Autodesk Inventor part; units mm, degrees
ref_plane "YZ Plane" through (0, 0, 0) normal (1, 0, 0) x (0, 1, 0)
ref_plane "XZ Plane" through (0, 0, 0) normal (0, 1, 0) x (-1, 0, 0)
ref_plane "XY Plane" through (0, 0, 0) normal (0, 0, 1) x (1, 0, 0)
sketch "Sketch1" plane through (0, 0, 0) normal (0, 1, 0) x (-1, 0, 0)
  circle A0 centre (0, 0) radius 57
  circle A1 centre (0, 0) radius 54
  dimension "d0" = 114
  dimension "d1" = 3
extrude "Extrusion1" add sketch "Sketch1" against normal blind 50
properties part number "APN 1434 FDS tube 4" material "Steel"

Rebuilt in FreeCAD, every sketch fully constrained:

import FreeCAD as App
import Part
import Sketcher

V = App.Vector

doc = App.newDocument("Part")
body = doc.addObject("PartDesign::Body", "Body")

# Sketch on XZ plane
sketch1 = body.newObject("Sketcher::SketchObject", "Sketch")
sketch1.AttachmentSupport = (doc.getObject("XZ_Plane"), [""])
sketch1.MapMode = "FlatFace"
sketch1.addGeometry([
    Part.Circle(V(0, 0, 0), V(0, 0, 1), 57),
    Part.Circle(V(0, 0, 0), V(0, 0, 1), 54),
], False)
sketch1.addConstraint([
    Sketcher.Constraint("Coincident", 0, 3, -1, 1),
    Sketcher.Constraint("Coincident", 1, 3, -1, 1),
    Sketcher.Constraint("Diameter", 0, 114.0),
    Sketcher.Constraint("Diameter", 1, 108.0),
])
pad1 = body.newObject("PartDesign::Pad", "Pad")
pad1.Profile = sketch1
pad1.Length = 50

doc.recompute()
